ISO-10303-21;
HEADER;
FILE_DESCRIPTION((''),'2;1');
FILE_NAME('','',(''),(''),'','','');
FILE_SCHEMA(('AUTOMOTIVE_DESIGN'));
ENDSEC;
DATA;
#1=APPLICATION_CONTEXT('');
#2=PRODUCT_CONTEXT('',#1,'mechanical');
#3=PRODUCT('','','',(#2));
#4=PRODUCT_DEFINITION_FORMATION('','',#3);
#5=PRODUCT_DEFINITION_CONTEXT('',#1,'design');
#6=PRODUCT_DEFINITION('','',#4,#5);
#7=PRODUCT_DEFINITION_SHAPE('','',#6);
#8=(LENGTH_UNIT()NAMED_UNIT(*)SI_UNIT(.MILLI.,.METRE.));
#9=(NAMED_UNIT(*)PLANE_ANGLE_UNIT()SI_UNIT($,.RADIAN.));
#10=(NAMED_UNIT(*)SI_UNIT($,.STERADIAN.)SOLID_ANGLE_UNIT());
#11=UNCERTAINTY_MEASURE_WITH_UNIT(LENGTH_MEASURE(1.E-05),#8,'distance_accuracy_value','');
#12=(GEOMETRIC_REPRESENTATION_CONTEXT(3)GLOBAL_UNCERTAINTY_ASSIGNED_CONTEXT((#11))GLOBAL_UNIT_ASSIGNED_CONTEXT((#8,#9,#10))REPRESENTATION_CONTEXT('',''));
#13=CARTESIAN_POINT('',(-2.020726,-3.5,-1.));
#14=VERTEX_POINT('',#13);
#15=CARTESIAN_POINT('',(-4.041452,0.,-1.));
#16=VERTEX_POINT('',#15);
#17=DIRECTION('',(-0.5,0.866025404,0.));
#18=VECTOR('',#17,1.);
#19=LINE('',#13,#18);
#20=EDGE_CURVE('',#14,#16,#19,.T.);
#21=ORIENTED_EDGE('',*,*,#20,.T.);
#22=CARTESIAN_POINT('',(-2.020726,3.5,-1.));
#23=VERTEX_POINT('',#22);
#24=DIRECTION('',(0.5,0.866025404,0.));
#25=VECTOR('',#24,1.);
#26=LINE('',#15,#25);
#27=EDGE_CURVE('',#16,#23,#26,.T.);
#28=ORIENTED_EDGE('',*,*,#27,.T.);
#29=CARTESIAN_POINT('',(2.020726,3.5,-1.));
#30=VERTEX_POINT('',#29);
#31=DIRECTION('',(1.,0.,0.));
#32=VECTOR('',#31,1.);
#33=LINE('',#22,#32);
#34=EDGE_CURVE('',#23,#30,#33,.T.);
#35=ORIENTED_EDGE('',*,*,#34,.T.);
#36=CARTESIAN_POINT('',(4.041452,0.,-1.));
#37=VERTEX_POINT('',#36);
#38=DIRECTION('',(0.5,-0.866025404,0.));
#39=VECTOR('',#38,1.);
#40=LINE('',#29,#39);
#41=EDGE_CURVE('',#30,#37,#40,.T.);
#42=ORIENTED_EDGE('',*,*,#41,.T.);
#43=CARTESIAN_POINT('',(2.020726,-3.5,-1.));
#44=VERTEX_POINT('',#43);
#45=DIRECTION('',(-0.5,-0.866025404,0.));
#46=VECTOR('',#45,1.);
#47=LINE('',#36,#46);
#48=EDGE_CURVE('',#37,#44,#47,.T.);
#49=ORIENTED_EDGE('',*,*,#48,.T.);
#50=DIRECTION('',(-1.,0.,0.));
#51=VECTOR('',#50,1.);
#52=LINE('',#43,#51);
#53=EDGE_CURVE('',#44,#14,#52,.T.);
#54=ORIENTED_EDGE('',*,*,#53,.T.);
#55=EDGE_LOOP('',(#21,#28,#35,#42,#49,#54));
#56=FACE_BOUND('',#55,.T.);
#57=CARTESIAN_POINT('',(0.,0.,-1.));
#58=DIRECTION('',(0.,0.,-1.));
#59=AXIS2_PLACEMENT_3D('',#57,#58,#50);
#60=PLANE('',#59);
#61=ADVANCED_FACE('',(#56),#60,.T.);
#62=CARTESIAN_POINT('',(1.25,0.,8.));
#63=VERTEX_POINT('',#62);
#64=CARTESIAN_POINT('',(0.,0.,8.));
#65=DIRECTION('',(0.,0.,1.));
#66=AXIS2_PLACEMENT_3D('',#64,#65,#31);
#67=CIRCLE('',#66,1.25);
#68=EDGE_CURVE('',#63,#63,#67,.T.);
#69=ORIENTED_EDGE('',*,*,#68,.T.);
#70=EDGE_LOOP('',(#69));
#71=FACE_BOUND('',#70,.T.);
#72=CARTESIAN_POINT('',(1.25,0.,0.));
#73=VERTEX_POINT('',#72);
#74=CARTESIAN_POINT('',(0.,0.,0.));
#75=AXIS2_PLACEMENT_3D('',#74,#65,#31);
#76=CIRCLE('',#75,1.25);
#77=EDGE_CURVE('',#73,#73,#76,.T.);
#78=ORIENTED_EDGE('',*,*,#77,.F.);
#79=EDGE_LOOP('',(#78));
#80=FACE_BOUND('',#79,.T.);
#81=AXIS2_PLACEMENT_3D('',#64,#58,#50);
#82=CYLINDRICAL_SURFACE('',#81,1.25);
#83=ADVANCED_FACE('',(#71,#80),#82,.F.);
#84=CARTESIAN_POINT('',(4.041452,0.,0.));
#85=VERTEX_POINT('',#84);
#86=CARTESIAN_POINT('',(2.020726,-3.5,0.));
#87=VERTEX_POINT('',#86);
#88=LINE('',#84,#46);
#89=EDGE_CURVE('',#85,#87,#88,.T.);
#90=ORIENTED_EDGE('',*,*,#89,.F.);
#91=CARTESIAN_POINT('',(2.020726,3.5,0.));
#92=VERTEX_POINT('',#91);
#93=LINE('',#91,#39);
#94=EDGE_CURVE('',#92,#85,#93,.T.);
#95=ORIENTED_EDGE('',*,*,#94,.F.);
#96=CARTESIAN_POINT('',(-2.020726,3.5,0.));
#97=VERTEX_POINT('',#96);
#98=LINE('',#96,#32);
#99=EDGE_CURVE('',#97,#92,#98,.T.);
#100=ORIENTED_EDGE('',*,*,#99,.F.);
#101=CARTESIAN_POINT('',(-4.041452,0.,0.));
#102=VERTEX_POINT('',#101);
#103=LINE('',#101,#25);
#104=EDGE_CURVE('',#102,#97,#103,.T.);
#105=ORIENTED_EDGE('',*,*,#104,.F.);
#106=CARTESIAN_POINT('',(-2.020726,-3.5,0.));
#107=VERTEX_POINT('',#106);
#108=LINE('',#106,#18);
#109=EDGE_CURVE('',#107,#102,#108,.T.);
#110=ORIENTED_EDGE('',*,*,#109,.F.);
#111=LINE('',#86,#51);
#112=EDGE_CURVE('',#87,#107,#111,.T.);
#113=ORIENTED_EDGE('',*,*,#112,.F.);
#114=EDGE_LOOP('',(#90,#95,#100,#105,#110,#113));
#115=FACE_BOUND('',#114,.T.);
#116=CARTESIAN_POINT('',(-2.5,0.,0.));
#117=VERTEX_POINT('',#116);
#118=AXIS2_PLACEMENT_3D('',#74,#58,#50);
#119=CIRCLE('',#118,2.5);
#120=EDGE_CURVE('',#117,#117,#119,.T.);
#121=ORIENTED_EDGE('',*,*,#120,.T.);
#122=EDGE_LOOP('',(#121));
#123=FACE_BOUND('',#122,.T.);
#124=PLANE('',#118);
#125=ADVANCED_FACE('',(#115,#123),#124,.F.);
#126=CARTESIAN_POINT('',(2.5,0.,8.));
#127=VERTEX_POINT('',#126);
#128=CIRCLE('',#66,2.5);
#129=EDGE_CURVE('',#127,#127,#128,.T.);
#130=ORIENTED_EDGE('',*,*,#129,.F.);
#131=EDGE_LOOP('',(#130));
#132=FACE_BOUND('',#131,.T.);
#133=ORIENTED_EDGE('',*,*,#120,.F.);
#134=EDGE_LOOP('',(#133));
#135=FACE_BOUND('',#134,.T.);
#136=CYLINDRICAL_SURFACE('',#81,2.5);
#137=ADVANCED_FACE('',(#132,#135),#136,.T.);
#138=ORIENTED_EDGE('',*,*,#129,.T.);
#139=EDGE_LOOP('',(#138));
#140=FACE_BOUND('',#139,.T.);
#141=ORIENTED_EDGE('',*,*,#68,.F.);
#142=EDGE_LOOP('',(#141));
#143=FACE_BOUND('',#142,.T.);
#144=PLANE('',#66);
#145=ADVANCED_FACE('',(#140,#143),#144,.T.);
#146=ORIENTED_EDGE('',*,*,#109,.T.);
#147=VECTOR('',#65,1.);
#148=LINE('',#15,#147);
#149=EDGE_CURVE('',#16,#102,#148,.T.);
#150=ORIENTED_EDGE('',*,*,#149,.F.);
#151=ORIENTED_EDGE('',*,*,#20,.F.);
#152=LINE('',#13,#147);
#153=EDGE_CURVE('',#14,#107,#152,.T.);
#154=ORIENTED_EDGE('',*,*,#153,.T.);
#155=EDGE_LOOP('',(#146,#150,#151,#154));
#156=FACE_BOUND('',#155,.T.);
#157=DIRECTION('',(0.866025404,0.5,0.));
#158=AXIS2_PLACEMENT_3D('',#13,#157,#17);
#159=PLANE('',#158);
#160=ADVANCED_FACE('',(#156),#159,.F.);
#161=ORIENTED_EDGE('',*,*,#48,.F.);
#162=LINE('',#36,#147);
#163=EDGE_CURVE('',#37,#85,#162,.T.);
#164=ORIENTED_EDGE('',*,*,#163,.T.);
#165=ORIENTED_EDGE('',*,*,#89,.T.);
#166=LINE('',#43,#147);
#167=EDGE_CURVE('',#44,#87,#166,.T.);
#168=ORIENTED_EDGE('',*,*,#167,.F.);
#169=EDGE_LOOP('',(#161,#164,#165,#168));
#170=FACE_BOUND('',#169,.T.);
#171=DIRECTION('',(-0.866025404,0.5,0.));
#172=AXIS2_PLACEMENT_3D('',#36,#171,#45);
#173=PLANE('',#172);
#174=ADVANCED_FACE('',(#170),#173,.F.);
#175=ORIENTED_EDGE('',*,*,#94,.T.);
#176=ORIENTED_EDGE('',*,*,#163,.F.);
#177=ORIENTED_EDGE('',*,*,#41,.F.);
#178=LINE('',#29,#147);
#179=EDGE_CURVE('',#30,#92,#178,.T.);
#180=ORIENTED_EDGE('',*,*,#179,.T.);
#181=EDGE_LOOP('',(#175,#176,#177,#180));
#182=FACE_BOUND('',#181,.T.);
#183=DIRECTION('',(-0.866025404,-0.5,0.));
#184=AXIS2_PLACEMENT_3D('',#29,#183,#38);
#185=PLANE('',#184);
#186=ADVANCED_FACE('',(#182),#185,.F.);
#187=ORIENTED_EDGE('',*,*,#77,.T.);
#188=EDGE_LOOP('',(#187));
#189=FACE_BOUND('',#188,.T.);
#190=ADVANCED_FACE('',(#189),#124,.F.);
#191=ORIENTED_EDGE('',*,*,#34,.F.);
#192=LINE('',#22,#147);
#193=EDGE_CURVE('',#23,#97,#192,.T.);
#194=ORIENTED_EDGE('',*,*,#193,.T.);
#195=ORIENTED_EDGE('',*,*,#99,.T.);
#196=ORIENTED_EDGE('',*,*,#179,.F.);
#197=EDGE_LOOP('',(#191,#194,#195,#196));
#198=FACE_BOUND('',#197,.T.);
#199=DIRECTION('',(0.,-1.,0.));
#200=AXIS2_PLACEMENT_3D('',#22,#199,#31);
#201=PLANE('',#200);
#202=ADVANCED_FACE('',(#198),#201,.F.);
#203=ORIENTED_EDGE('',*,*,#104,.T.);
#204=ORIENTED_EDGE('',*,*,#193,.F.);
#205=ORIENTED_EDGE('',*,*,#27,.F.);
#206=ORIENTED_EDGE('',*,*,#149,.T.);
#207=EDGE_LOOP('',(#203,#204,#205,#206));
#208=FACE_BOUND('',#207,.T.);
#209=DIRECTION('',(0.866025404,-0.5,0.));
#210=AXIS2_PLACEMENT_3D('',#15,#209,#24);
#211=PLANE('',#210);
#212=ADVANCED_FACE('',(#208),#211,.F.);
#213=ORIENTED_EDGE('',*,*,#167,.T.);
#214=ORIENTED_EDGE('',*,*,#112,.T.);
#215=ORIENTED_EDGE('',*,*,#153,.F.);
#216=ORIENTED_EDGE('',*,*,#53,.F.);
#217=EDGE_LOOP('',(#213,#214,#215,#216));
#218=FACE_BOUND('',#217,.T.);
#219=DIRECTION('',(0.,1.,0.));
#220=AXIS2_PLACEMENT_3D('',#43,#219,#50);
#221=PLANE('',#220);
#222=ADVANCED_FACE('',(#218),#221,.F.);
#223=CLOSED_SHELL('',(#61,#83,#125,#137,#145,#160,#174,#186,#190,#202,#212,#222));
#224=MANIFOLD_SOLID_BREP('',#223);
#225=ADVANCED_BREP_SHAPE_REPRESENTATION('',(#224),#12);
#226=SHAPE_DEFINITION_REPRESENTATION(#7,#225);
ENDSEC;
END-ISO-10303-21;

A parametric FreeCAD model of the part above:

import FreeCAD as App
import Part
import Sketcher
Q = App.Units.Quantity

doc = App.newDocument("Part")
params = doc.addObject("Spreadsheet::Sheet", "Params")
for row, (alias, value) in enumerate([
    ("sketch1_diameter", "5 mm"),
    ("sketch1_diameter2", "2.5 mm"),
    ("pad1_length", "8 mm"),
    ("pad2_length", "1 mm"),
], start=1):
    params.set(f"A{row}", alias)
    params.set(f"B{row}", "=" + value)
    params.setAlias(f"B{row}", alias)

body = doc.addObject("PartDesign::Body", "Body")

sketch1 = body.newObject("Sketcher::SketchObject", "Sketch")
sketch1.AttachmentSupport = (doc.getObject("XY_Plane"), [""])
sketch1.MapMode = "FlatFace"
sketch1.addGeometry(Part.Circle(App.Vector(0, 0, 0), App.Vector(0, 0, 1), 2.5), False)
sketch1.addGeometry(Part.Circle(App.Vector(0, 0, 0), App.Vector(0, 0, 1), 1.2), False)
sketch1.addConstraint(Sketcher.Constraint("Coincident", 0, 3, -1, 1))
sketch1.addConstraint(Sketcher.Constraint("Coincident", 1, 3, -1, 1))
sketch1.addConstraint(Sketcher.Constraint("Diameter", 0, Q("5 mm")))
sketch1.addConstraint(Sketcher.Constraint("Diameter", 1, Q("2.5 mm")))
sketch1.setExpression("Constraints[2]", "Params.sketch1_diameter")
sketch1.setExpression("Constraints[3]", "Params.sketch1_diameter2")
pad1 = body.newObject("PartDesign::Pad", "Pad")
pad1.Profile = sketch1
pad1.setExpression("Length", "Params.pad1_length")

sketch2 = body.newObject("Sketcher::SketchObject", "Sketch001")
sketch2.AttachmentSupport = (doc.getObject("XY_Plane"), [""])
sketch2.MapMode = "FlatFace"
sketch2.addGeometry(Part.LineSegment(App.Vector(2, -3.5, 0), App.Vector(-2, -3.5, 0)), False)
sketch2.addGeometry(Part.LineSegment(App.Vector(-2, -3.5, 0), App.Vector(-4, 0, 0)), False)
sketch2.addGeometry(Part.LineSegment(App.Vector(-4, 0, 0), App.Vector(-2, 3.5, 0)), False)
sketch2.addGeometry(Part.LineSegment(App.Vector(-2, 3.5, 0), App.Vector(2, 3.5, 0)), False)
sketch2.addGeometry(Part.LineSegment(App.Vector(2, 3.5, 0), App.Vector(4, 0, 0)), False)
sketch2.addGeometry(Part.LineSegment(App.Vector(4, 0, 0), App.Vector(2, -3.5, 0)), False)
sketch2.addConstraint(Sketcher.Constraint("Coincident", 0, 2, 1, 1))
sketch2.addConstraint(Sketcher.Constraint("Coincident", 1, 2, 2, 1))
sketch2.addConstraint(Sketcher.Constraint("Coincident", 2, 2, 3, 1))
sketch2.addConstraint(Sketcher.Constraint("Coincident", 3, 2, 4, 1))
sketch2.addConstraint(Sketcher.Constraint("Coincident", 4, 2, 5, 1))
sketch2.addConstraint(Sketcher.Constraint("Coincident", 5, 2, 0, 1))
sketch2.addConstraint(Sketcher.Constraint("Horizontal", 0))
sketch2.addConstraint(Sketcher.Constraint("Horizontal", 3))
sketch2.addConstraint(Sketcher.Constraint("Symmetric", 0, 2, 3, 2, -1, 1))
sketch2.addConstraint(Sketcher.Constraint("Symmetric", 1, 2, 4, 2, -1, 1))
sketch2.addConstraint(Sketcher.Constraint("PointOnObject", 1, 2, -1))
sketch2.addConstraint(Sketcher.Constraint("Parallel", 2, 5))
sketch2.addConstraint(Sketcher.Constraint("Vertical", 0, 2, 2, 2))
sketch2.addConstraint(Sketcher.Constraint("Angle", 1, Q("120 deg")))
sketch2.addConstraint(Sketcher.Constraint("DistanceY", 0, 2, 2, 2, Q("7 mm")))
sketch2.addConstraint(Sketcher.Constraint("DistanceX", 0, 2, 0, 1, Q("4.041452 mm")))
pad2 = body.newObject("PartDesign::Pad", "Pad001")
pad2.Profile = sketch2
pad2.setExpression("Length", "Params.pad2_length")
pad2.Reversed = True

doc.recompute()
